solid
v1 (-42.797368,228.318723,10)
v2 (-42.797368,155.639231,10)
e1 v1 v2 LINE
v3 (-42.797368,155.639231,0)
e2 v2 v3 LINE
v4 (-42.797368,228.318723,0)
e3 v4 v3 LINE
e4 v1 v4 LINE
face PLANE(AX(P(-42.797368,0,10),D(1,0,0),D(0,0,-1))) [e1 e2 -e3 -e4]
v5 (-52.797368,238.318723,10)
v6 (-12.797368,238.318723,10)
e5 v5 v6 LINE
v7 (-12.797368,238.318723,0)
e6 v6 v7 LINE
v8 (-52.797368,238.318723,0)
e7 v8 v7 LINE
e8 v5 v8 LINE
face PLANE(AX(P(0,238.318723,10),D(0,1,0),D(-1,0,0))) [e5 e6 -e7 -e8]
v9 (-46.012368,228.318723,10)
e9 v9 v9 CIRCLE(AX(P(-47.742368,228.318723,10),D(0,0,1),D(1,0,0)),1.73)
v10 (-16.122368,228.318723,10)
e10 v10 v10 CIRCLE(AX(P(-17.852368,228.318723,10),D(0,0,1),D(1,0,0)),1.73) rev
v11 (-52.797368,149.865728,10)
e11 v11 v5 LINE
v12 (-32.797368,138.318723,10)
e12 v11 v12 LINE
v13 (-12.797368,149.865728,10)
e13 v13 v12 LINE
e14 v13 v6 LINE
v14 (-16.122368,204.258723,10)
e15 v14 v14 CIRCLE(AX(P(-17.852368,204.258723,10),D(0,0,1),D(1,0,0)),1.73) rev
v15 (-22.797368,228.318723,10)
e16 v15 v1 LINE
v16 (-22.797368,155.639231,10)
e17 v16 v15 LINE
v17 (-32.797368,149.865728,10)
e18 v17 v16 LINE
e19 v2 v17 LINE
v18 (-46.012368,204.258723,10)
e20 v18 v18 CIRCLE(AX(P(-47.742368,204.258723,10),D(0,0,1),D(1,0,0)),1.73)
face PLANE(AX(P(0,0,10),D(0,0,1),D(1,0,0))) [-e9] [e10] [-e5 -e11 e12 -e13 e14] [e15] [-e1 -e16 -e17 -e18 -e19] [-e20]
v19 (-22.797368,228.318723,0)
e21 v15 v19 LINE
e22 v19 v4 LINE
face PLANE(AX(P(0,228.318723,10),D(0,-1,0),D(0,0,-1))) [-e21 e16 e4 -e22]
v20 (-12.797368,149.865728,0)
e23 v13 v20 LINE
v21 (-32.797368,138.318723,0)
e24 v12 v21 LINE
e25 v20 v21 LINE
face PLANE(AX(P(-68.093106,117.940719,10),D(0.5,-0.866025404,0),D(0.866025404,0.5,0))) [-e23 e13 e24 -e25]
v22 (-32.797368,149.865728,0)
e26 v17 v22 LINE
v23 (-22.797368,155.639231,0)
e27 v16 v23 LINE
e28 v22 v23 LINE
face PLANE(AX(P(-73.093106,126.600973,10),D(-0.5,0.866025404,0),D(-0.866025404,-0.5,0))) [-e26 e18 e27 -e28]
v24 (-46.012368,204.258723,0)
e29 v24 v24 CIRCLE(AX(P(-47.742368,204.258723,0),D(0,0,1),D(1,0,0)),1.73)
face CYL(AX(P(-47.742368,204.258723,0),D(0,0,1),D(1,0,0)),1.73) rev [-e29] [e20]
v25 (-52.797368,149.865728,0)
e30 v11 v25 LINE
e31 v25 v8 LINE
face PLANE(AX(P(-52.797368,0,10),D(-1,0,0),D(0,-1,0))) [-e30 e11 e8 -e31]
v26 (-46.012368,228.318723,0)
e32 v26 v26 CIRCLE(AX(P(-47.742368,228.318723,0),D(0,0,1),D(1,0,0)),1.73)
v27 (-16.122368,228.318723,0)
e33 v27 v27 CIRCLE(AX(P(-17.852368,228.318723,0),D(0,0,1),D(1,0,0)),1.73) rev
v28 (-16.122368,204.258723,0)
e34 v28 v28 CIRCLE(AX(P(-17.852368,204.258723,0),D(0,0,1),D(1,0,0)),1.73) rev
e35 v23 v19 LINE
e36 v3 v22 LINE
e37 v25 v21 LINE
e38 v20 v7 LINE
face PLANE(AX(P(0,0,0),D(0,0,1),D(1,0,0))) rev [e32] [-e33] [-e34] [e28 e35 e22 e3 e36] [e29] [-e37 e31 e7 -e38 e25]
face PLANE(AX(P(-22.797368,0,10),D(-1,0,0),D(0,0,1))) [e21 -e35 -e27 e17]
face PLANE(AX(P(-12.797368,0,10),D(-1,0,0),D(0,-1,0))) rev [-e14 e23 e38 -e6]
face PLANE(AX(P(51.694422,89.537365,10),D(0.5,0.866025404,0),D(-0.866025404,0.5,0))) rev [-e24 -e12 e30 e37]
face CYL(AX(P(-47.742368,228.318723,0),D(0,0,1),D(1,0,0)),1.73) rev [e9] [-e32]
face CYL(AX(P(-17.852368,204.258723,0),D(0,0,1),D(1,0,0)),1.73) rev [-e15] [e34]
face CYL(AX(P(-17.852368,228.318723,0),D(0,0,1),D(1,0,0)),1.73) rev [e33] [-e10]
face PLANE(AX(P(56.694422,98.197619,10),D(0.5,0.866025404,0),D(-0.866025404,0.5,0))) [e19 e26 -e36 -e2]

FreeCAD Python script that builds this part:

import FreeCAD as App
import Part
import Sketcher

V = App.Vector
Q = App.Units.Quantity

doc = App.newDocument("Part")
body = doc.addObject("PartDesign::Body", "Body")

# Sketch on XY plane
sketch1 = body.newObject("Sketcher::SketchObject", "Sketch")
sketch1.AttachmentSupport = (doc.getObject("XY_Plane"), [""])
sketch1.MapMode = "FlatFace"
sketch1.addGeometry(Part.LineSegment(V(-13, 238, 0), V(-53, 238, 0)), False)
sketch1.addGeometry(Part.LineSegment(V(-53, 238, 0), V(-53, 150, 0)), False)
sketch1.addGeometry(Part.LineSegment(V(-53, 150, 0), V(-33, 138, 0)), False)
sketch1.addGeometry(Part.LineSegment(V(-33, 138, 0), V(-13, 150, 0)), False)
sketch1.addGeometry(Part.LineSegment(V(-13, 150, 0), V(-13, 238, 0)), False)
sketch1.addGeometry(Part.LineSegment(V(-33, 150, 0), V(-43, 156, 0)), False)
sketch1.addGeometry(Part.LineSegment(V(-43, 156, 0), V(-43, 228, 0)), False)
sketch1.addGeometry(Part.LineSegment(V(-43, 228, 0), V(-23, 228, 0)), False)
sketch1.addGeometry(Part.LineSegment(V(-23, 228, 0), V(-23, 156, 0)), False)
sketch1.addGeometry(Part.LineSegment(V(-23, 156, 0), V(-33, 150, 0)), False)
sketch1.addConstraint(Sketcher.Constraint("Coincident", 0, 2, 1, 1))
sketch1.addConstraint(Sketcher.Constraint("Coincident", 1, 2, 2, 1))
sketch1.addConstraint(Sketcher.Constraint("Coincident", 2, 2, 3, 1))
sketch1.addConstraint(Sketcher.Constraint("Coincident", 3, 2, 4, 1))
sketch1.addConstraint(Sketcher.Constraint("Coincident", 4, 2, 0, 1))
sketch1.addConstraint(Sketcher.Constraint("Coincident", 5, 2, 6, 1))
sketch1.addConstraint(Sketcher.Constraint("Coincident", 6, 2, 7, 1))
sketch1.addConstraint(Sketcher.Constraint("Coincident", 7, 2, 8, 1))
sketch1.addConstraint(Sketcher.Constraint("Coincident", 8, 2, 9, 1))
sketch1.addConstraint(Sketcher.Constraint("Coincident", 9, 2, 5, 1))
sketch1.addConstraint(Sketcher.Constraint("Horizontal", 0))
sketch1.addConstraint(Sketcher.Constraint("Vertical", 1))
sketch1.addConstraint(Sketcher.Constraint("Vertical", 4))
sketch1.addConstraint(Sketcher.Constraint("Vertical", 6))
sketch1.addConstraint(Sketcher.Constraint("Horizontal", 7))
sketch1.addConstraint(Sketcher.Constraint("Vertical", 8))
sketch1.addConstraint(Sketcher.Constraint("Parallel", 2, 5))
sketch1.addConstraint(Sketcher.Constraint("Parallel", 3, 9))
sketch1.addConstraint(Sketcher.Constraint("Horizontal", 1, 2, 3, 2))
sketch1.addConstraint(Sketcher.Constraint("Horizontal", 5, 2, 8, 2))
sketch1.addConstraint(Sketcher.Constraint("Horizontal", 3, 2, 9, 2))
sketch1.addConstraint(Sketcher.Constraint("Vertical", 2, 2, 9, 2))
sketch1.addConstraint(Sketcher.Constraint("Equal", 2, 3))
sketch1.addConstraint(Sketcher.Constraint("DistanceX", 0, 2, 0, 1, 40.0))
sketch1.addConstraint(Sketcher.Constraint("DistanceX", 7, 1, 7, 2, 20.0))
sketch1.addConstraint(Sketcher.Constraint("Angle", 2, Q("-30 deg")))
sketch1.addConstraint(Sketcher.Constraint("DistanceY", 2, 2, 0, 2, 100.0))
sketch1.addConstraint(Sketcher.Constraint("DistanceY", 6, 2, 0, 2, 10.0))
sketch1.addConstraint(Sketcher.Constraint("DistanceX", 0, 2, -1, 1, 52.797368))
sketch1.addConstraint(Sketcher.Constraint("DistanceY", -1, 1, 1, 2, 149.865728))
pad1 = body.newObject("PartDesign::Pad", "Pad")
pad1.Profile = sketch1
pad1.Length = 10

# Sketch on XY plane
sketch2 = body.newObject("Sketcher::SketchObject", "Sketch001")
sketch2.AttachmentSupport = (doc.getObject("XY_Plane"), [""])
sketch2.MapMode = "FlatFace"
sketch2.AttachmentOffset = App.Placement(V(0, 0, 10), App.Rotation())
sketch2.addGeometry(Part.Circle(V(-47.7, 228.3, 0), V(0, 0, 1), 1.7), False)
sketch2.addGeometry(Part.Circle(V(-47.7, 204.3, 0), V(0, 0, 1), 1.7), False)
sketch2.addGeometry(Part.Circle(V(-17.9, 204.3, 0), V(0, 0, 1), 1.7), False)
sketch2.addGeometry(Part.Circle(V(-17.9, 228.3, 0), V(0, 0, 1), 1.7), False)
sketch2.addConstraint(Sketcher.Constraint("Equal", 0, 1))
sketch2.addConstraint(Sketcher.Constraint("Equal", 1, 2))
sketch2.addConstraint(Sketcher.Constraint("Equal", 2, 3))
sketch2.addConstraint(Sketcher.Constraint("Horizontal", 1, 3, 2, 3))
sketch2.addConstraint(Sketcher.Constraint("Horizontal", 0, 3, 3, 3))
sketch2.addConstraint(Sketcher.Constraint("Vertical", 0, 3, 1, 3))
sketch2.addConstraint(Sketcher.Constraint("Vertical", 2, 3, 3, 3))
sketch2.addConstraint(Sketcher.Constraint("Diameter", 0, 3.46))
sketch2.addConstraint(Sketcher.Constraint("DistanceY", 1, 3, 0, 3, 24.06))
sketch2.addConstraint(Sketcher.Constraint("DistanceX", 1, 3, 2, 3, 29.89))
sketch2.addConstraint(Sketcher.Constraint("DistanceX", 0, 3, -1, 1, 47.742368))
sketch2.addConstraint(Sketcher.Constraint("DistanceY", -1, 1, 0, 3, 228.318723))
pocket1 = body.newObject("PartDesign::Pocket", "Pocket")
pocket1.Profile = sketch2
pocket1.Length = 10

doc.recompute()
